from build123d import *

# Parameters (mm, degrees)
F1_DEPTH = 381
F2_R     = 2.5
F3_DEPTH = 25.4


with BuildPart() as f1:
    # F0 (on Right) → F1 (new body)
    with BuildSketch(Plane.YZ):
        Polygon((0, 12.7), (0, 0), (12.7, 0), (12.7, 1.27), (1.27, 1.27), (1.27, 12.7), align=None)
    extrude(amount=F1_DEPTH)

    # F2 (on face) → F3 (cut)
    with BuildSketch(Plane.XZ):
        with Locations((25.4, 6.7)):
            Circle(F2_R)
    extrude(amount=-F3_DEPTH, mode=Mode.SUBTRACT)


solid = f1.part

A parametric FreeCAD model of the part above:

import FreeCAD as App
import Part
import Sketcher

V = App.Vector
Q = App.Units.Quantity

doc = App.newDocument("Part")
params = doc.addObject("Spreadsheet::Sheet", "Params")
for row, (alias, value) in enumerate([
    ("sketch1_width", "0.5 in"),
    ("sketch1_width2", "0.45 in"),
    ("pad1_length", "15 in"),
    ("pocket1_length", "1 in"),
], start=1):
    params.set(f"A{row}", alias)
    params.set(f"B{row}", "=" + value)
    params.setAlias(f"B{row}", alias)

body = doc.addObject("PartDesign::Body", "Body")

# Sketch on YZ plane
sketch1 = doc.addObject("Sketcher::SketchObject", "Sketch")
body.addObject(sketch1)
sketch1.AttachmentSupport = (doc.YZ_Plane, [""])
sketch1.MapMode = "FlatFace"
sketch1.addGeometry(Part.LineSegment(V(0, 12.7, 0), V(0, 0, 0)), False)
sketch1.addGeometry(Part.LineSegment(V(0, 0, 0), V(12.7, 0, 0)), False)
sketch1.addGeometry(Part.LineSegment(V(12.7, 0, 0), V(12.7, 1.27, 0)), False)
sketch1.addGeometry(Part.LineSegment(V(12.7, 1.27, 0), V(1.27, 1.27, 0)), False)
sketch1.addGeometry(Part.LineSegment(V(1.27, 1.27, 0), V(1.27, 12.7, 0)), False)
sketch1.addGeometry(Part.LineSegment(V(1.27, 12.7, 0), V(0, 12.7, 0)), False)
sketch1.addConstraint(Sketcher.Constraint("Coincident", 0, 2, 1, 1))
sketch1.addConstraint(Sketcher.Constraint("Coincident", 1, 2, 2, 1))
sketch1.addConstraint(Sketcher.Constraint("Coincident", 2, 2, 3, 1))
sketch1.addConstraint(Sketcher.Constraint("Coincident", 3, 2, 4, 1))
sketch1.addConstraint(Sketcher.Constraint("Coincident", 4, 2, 5, 1))
sketch1.addConstraint(Sketcher.Constraint("Coincident", 5, 2, 0, 1))
sketch1.addConstraint(Sketcher.Constraint("Vertical", 0))
sketch1.addConstraint(Sketcher.Constraint("Horizontal", 1))
sketch1.addConstraint(Sketcher.Constraint("Vertical", 2))
sketch1.addConstraint(Sketcher.Constraint("Horizontal", 3))
sketch1.addConstraint(Sketcher.Constraint("Vertical", 4))
sketch1.addConstraint(Sketcher.Constraint("Horizontal", 5))
sketch1.addConstraint(Sketcher.Constraint("Coincident", 0, 2, -1, 1))
sketch1.addConstraint(Sketcher.Constraint("Equal", 1, 0))
sketch1.addConstraint(Sketcher.Constraint("Equal", 5, 2))
sketch1.addConstraint(Sketcher.Constraint("DistanceX", 1, 1, 1, 2, Q("0.5 in")))
sketch1.addConstraint(Sketcher.Constraint("DistanceX", 3, 2, 3, 1, Q("0.45 in")))
sketch1.setExpression("Constraints[15]", "Params.sketch1_width")
sketch1.setExpression("Constraints[16]", "Params.sketch1_width2")
pad1 = doc.addObject("PartDesign::Pad", "Pad")
body.addObject(pad1)
pad1.Profile = sketch1
pad1.setExpression("Length", "Params.pad1_length")

# Sketch on XZ plane
sketch2 = doc.addObject("Sketcher::SketchObject", "Sketch001")
body.addObject(sketch2)
sketch2.AttachmentSupport = (doc.XZ_Plane, [""])
sketch2.MapMode = "FlatFace"
sketch2.addGeometry(Part.Circle(V(25.4, 6.7, 0), V(0, 0, 1), 2.5), False)
sketch2.addConstraint(Sketcher.Constraint("DistanceX", -1, 1, 0, 3, Q("1 in")))
sketch2.addConstraint(Sketcher.Constraint("Diameter", 0, 5.0))
sketch2.addConstraint(Sketcher.Constraint("DistanceY", -1, 1, 0, 3, 6.7))
pocket1 = doc.addObject("PartDesign::Pocket", "Pocket")
body.addObject(pocket1)
pocket1.Profile = sketch2
pocket1.setExpression("Length", "Params.pocket1_length")

doc.recompute()
